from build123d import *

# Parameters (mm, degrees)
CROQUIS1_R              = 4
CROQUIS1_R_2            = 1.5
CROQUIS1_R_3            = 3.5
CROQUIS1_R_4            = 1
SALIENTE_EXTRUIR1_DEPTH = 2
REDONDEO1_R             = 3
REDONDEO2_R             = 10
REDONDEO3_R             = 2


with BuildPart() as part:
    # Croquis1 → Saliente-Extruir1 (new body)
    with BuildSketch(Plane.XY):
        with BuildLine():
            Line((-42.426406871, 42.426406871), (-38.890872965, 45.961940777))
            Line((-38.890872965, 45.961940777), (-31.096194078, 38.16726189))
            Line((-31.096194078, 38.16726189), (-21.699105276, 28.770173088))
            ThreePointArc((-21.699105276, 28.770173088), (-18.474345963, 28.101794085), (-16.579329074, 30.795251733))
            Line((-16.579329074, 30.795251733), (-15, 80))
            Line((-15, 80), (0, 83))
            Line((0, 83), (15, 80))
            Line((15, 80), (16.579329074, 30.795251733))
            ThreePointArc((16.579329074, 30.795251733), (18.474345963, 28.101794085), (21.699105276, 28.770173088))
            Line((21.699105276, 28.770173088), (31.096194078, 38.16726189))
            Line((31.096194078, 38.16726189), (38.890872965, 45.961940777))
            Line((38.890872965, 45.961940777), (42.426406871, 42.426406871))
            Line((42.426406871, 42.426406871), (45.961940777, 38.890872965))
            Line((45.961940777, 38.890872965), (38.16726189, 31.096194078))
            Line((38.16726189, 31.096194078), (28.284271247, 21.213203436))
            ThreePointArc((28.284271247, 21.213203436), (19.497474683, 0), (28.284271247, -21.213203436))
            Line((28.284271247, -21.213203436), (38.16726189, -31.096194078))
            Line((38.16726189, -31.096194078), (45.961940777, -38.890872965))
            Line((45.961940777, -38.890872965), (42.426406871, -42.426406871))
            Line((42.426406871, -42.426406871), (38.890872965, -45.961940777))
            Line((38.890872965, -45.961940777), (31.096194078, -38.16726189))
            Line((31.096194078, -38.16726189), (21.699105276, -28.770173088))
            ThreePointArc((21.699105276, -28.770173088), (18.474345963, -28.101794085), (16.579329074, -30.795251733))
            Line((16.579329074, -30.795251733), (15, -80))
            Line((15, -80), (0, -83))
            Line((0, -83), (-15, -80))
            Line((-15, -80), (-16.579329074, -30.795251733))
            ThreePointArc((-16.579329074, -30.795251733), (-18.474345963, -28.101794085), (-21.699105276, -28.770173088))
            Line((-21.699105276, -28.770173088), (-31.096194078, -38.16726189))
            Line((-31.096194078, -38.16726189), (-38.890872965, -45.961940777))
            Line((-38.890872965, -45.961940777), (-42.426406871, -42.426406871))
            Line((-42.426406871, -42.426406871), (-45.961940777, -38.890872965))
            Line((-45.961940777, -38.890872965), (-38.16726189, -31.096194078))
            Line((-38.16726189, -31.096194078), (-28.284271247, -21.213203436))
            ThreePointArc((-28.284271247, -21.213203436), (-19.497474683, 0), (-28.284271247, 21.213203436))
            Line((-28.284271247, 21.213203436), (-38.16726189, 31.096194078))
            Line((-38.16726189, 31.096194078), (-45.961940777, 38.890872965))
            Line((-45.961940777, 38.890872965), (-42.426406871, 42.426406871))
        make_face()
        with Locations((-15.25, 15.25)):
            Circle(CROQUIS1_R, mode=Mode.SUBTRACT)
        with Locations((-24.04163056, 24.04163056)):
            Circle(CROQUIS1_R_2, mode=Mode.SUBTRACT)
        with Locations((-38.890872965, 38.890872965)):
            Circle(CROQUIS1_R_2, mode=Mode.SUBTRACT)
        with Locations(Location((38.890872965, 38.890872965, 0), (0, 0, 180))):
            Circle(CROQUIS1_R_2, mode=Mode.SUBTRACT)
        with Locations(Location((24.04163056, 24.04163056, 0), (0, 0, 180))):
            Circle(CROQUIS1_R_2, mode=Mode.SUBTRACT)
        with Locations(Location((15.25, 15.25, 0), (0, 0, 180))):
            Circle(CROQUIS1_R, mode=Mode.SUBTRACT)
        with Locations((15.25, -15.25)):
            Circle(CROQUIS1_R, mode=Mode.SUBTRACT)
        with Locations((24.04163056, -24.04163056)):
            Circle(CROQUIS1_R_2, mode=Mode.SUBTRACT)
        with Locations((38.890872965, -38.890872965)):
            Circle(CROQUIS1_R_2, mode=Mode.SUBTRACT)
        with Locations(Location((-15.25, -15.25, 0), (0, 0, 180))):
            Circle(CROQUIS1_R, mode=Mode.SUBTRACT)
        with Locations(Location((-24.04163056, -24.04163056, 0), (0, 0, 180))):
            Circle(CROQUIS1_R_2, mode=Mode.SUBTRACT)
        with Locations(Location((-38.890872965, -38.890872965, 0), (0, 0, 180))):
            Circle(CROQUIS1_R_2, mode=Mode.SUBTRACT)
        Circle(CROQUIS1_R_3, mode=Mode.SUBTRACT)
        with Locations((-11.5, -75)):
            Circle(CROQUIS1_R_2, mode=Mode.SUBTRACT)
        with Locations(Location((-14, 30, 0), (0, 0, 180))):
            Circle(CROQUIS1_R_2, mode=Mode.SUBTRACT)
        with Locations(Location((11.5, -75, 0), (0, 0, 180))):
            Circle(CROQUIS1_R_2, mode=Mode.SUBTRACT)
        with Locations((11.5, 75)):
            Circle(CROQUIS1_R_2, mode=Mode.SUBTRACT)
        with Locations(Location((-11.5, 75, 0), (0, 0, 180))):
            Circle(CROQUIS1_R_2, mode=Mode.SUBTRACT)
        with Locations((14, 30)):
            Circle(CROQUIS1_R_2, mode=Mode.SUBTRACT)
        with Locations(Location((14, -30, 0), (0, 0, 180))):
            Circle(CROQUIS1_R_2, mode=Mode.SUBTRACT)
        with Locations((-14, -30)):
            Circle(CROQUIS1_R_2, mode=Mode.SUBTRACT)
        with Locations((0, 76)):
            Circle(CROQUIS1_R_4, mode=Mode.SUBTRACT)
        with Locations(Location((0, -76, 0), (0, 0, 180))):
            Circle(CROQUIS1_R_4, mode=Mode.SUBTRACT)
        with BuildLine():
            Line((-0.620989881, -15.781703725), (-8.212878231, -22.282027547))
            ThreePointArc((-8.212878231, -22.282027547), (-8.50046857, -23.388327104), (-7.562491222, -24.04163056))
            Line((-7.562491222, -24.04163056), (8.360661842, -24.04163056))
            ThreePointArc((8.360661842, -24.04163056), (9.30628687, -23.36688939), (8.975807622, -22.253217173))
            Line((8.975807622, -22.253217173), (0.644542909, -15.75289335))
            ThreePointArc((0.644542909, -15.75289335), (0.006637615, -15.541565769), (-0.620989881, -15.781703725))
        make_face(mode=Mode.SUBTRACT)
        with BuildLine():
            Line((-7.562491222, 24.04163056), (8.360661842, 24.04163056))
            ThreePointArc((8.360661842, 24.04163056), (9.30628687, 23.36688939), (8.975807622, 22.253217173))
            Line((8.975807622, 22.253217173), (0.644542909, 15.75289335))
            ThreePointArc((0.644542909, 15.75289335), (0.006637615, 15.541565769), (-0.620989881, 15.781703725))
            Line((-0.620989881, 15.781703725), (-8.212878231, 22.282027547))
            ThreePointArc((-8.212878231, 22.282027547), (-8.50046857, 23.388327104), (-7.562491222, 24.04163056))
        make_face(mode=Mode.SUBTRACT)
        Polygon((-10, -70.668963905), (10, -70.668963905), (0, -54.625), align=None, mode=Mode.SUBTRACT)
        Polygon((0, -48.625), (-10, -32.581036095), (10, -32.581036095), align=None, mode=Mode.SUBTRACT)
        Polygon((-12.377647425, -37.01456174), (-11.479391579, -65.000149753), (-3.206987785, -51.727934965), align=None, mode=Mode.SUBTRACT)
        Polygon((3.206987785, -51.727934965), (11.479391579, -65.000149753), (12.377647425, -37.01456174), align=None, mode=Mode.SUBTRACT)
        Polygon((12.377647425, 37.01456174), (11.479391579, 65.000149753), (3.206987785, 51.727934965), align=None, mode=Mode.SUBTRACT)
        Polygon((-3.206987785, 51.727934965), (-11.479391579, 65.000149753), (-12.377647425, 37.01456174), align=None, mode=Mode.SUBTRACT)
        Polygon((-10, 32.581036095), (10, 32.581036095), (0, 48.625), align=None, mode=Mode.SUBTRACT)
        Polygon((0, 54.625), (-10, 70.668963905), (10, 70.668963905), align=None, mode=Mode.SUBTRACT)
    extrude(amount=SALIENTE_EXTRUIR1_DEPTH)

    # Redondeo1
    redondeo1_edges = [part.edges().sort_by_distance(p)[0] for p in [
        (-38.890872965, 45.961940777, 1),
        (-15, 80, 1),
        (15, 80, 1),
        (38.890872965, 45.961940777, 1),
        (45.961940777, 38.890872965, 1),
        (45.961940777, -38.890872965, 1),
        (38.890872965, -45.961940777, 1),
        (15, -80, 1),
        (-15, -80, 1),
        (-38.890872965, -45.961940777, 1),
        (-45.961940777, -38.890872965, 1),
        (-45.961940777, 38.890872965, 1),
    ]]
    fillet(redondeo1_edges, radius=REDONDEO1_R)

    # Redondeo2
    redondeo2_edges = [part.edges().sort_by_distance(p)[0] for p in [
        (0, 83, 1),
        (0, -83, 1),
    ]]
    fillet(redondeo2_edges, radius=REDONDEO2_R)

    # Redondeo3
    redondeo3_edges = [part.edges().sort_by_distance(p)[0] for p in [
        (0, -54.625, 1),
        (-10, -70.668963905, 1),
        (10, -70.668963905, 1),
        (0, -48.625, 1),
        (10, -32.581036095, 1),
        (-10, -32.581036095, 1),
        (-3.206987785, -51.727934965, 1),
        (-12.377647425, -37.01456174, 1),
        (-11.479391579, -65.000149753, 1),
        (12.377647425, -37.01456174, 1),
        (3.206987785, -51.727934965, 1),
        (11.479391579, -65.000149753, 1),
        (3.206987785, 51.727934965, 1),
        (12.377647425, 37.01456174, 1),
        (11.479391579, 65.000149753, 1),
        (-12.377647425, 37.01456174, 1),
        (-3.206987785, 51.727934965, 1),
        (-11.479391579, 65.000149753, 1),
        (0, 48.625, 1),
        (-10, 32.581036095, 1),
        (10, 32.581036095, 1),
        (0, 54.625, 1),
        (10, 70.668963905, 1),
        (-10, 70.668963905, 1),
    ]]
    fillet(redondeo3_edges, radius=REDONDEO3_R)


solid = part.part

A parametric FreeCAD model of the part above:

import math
import FreeCAD as App
import Part
import Sketcher


def edges_at(feature, points):
    """Names of the edges that pass closest to the given points."""
    edges = feature.Shape.Edges
    near = lambda p: min(range(len(edges)), key=lambda i: edges[i].distToShape(Part.Vertex(*p))[0])
    return sorted({f"Edge{near(p) + 1}" for p in points})


def add_polygon(sketch, points):
    """Adds a closed chain of lines whose ends are joined by coincident constraints."""
    first, n = sketch.GeometryCount, len(points)
    for a, b in zip(points, points[1:] + points[:1]):
        sketch.addGeometry(Part.LineSegment(App.Vector(*a, 0), App.Vector(*b, 0)), False)
    for i in range(n):
        sketch.addConstraint(Sketcher.Constraint("Coincident", first + i, 2, first + (i + 1) % n, 1))

doc = App.newDocument("Part")
body = doc.addObject("PartDesign::Body", "Body")

sketch1 = body.newObject("Sketcher::SketchObject", "Sketch")
sketch1.AttachmentSupport = (doc.getObject("XY_Plane"), [""])
sketch1.MapMode = "FlatFace"
sketch1.addGeometry(Part.LineSegment(App.Vector(-21.7, 28.8, 0), App.Vector(-38.9, 46, 0)), False)
sketch1.addGeometry(Part.LineSegment(App.Vector(-38.9, 46, 0), App.Vector(-46, 38.9, 0)), False)
sketch1.addGeometry(Part.LineSegment(App.Vector(-46, 38.9, 0), App.Vector(-38.2, 31.1, 0)), False)
sketch1.addGeometry(Part.LineSegment(App.Vector(-38.2, 31.1, 0), App.Vector(-28.3, 21.2, 0)), False)
sketch1.addGeometry(Part.ArcOfCircle(Part.Circle(App.Vector(-49.5, 0, 0), App.Vector(0, 0, 1), 30), math.radians(-45), math.radians(45)), False)
sketch1.addGeometry(Part.LineSegment(App.Vector(-28.3, -21.2, 0), App.Vector(-38.2, -31.1, 0)), False)
sketch1.addGeometry(Part.LineSegment(App.Vector(-38.2, -31.1, 0), App.Vector(-46, -38.9, 0)), False)
sketch1.addGeometry(Part.LineSegment(App.Vector(-46, -38.9, 0), App.Vector(-38.9, -46, 0)), False)
sketch1.addGeometry(Part.LineSegment(App.Vector(-38.9, -46, 0), App.Vector(-21.7, -28.8, 0)), False)
sketch1.addGeometry(Part.ArcOfCircle(Part.Circle(App.Vector(-19.6, -30.9, 0), App.Vector(0, 0, 1), 3), math.radians(2), math.radians(135)), False)
sketch1.addGeometry(Part.LineSegment(App.Vector(-16.6, -30.8, 0), App.Vector(-15, -80, 0)), False)
sketch1.addGeometry(Part.LineSegment(App.Vector(-15, -80, 0), App.Vector(0, -83, 0)), False)
sketch1.addGeometry(Part.LineSegment(App.Vector(0, -83, 0), App.Vector(15, -80, 0)), False)
sketch1.addGeometry(Part.LineSegment(App.Vector(15, -80, 0), App.Vector(16.6, -30.8, 0)), False)
sketch1.addGeometry(Part.ArcOfCircle(Part.Circle(App.Vector(19.6, -30.9, 0), App.Vector(0, 0, 1), 3), math.radians(45), math.radians(178)), False)
sketch1.addGeometry(Part.LineSegment(App.Vector(21.7, -28.8, 0), App.Vector(38.9, -46, 0)), False)
sketch1.addGeometry(Part.LineSegment(App.Vector(38.9, -46, 0), App.Vector(46, -38.9, 0)), False)
sketch1.addGeometry(Part.LineSegment(App.Vector(46, -38.9, 0), App.Vector(38.2, -31.1, 0)), False)
sketch1.addGeometry(Part.LineSegment(App.Vector(38.2, -31.1, 0), App.Vector(28.3, -21.2, 0)), False)
sketch1.addGeometry(Part.ArcOfCircle(Part.Circle(App.Vector(49.5, 0, 0), App.Vector(0, 0, 1), 30), math.radians(135), math.radians(225)), False)
sketch1.addGeometry(Part.LineSegment(App.Vector(28.3, 21.2, 0), App.Vector(38.2, 31.1, 0)), False)
sketch1.addGeometry(Part.LineSegment(App.Vector(38.2, 31.1, 0), App.Vector(46, 38.9, 0)), False)
sketch1.addGeometry(Part.LineSegment(App.Vector(46, 38.9, 0), App.Vector(38.9, 46, 0)), False)
sketch1.addGeometry(Part.LineSegment(App.Vector(38.9, 46, 0), App.Vector(21.7, 28.8, 0)), False)
sketch1.addGeometry(Part.ArcOfCircle(Part.Circle(App.Vector(19.6, 30.9, 0), App.Vector(0, 0, 1), 3), math.radians(-178), math.radians(-45)), False)
sketch1.addGeometry(Part.LineSegment(App.Vector(16.6, 30.8, 0), App.Vector(15, 80, 0)), False)
sketch1.addGeometry(Part.LineSegment(App.Vector(15, 80, 0), App.Vector(0, 83, 0)), False)
sketch1.addGeometry(Part.LineSegment(App.Vector(0, 83, 0), App.Vector(-15, 80, 0)), False)
sketch1.addGeometry(Part.LineSegment(App.Vector(-15, 80, 0), App.Vector(-16.6, 30.8, 0)), False)
sketch1.addGeometry(Part.ArcOfCircle(Part.Circle(App.Vector(-19.6, 30.9, 0), App.Vector(0, 0, 1), 3), math.radians(-135), math.radians(-2)), False)
sketch1.addGeometry(Part.Circle(App.Vector(38.9, -38.9, 0), App.Vector(0, 0, 1), 1.5), False)
sketch1.addGeometry(Part.Circle(App.Vector(11.5, -75, 0), App.Vector(0, 0, 1), 1.5), False)
sketch1.addGeometry(Part.Circle(App.Vector(0, -76, 0), App.Vector(0, 0, 1), 1), False)
add_polygon(sketch1, [(-10, -70.7), (0, -54.6), (10, -70.7)])
add_polygon(sketch1, [(3.2, -51.7), (12.4, -37), (11.5, -65)])
add_polygon(sketch1, [(0, -48.6), (-10, -32.6), (10, -32.6)])
sketch1.addGeometry(Part.Circle(App.Vector(24, -24, 0), App.Vector(0, 0, 1), 1.5), False)
sketch1.addGeometry(Part.Circle(App.Vector(14, -30, 0), App.Vector(0, 0, 1), 1.5), False)
sketch1.addGeometry(Part.ArcOfCircle(Part.Circle(App.Vector(0, -16.5, 0), App.Vector(0, 0, 1), 1), math.radians(52), math.radians(131)), False)
sketch1.addGeometry(Part.LineSegment(App.Vector(0.6, -15.8, 0), App.Vector(9, -22.3, 0)), False)
sketch1.addGeometry(Part.ArcOfCircle(Part.Circle(App.Vector(8.4, -23, 0), App.Vector(0, 0, 1), 1), math.radians(-90), math.radians(52)), False)
sketch1.addGeometry(Part.LineSegment(App.Vector(8.4, -24, 0), App.Vector(-7.6, -24, 0)), False)
sketch1.addGeometry(Part.ArcOfCircle(Part.Circle(App.Vector(-7.6, -23, 0), App.Vector(0, 0, 1), 1), math.radians(131), math.radians(270)), False)
sketch1.addGeometry(Part.LineSegment(App.Vector(-8.2, -22.3, 0), App.Vector(-0.6, -15.8, 0)), False)
sketch1.addGeometry(Part.Circle(App.Vector(15.2, -15.2, 0), App.Vector(0, 0, 1), 4), False)
sketch1.addGeometry(Part.Circle(App.Vector(-11.5, -75, 0), App.Vector(0, 0, 1), 1.5), False)
add_polygon(sketch1, [(-12.4, -37), (-3.2, -51.7), (-11.5, -65)])
sketch1.addGeometry(Part.Circle(App.Vector(-38.9, -38.9, 0), App.Vector(0, 0, 1), 1.5), False)
sketch1.addGeometry(Part.Circle(App.Vector(-14, -30, 0), App.Vector(0, 0, 1), 1.5), False)
sketch1.addGeometry(Part.Circle(App.Vector(-15.2, -15.2, 0), App.Vector(0, 0, 1), 4), False)
sketch1.addGeometry(Part.Circle(App.Vector(-24, -24, 0), App.Vector(0, 0, 1), 1.5), False)
sketch1.addGeometry(Part.Circle(App.Vector(24, 24, 0), App.Vector(0, 0, 1), 1.5), False)
sketch1.addGeometry(Part.Circle(App.Vector(15.2, 15.2, 0), App.Vector(0, 0, 1), 4), False)
sketch1.addGeometry(Part.Circle(App.Vector(0, 0, 0), App.Vector(0, 0, 1), 3.5), False)
sketch1.addGeometry(Part.Circle(App.Vector(14, 30, 0), App.Vector(0, 0, 1), 1.5), False)
sketch1.addGeometry(Part.LineSegment(App.Vector(-7.6, 24, 0), App.Vector(8.4, 24, 0)), False)
sketch1.addGeometry(Part.ArcOfCircle(Part.Circle(App.Vector(8.4, 23, 0), App.Vector(0, 0, 1), 1), math.radians(-52), math.radians(90)), False)
sketch1.addGeometry(Part.LineSegment(App.Vector(9, 22.3, 0), App.Vector(0.6, 15.8, 0)), False)
sketch1.addGeometry(Part.ArcOfCircle(Part.Circle(App.Vector(0, 16.5, 0), App.Vector(0, 0, 1), 1), math.radians(-131), math.radians(-52)), False)
sketch1.addGeometry(Part.LineSegment(App.Vector(-0.6, 15.8, 0), App.Vector(-8.2, 22.3, 0)), False)
sketch1.addGeometry(Part.ArcOfCircle(Part.Circle(App.Vector(-7.6, 23, 0), App.Vector(0, 0, 1), 1), math.radians(90), math.radians(229)), False)
sketch1.addGeometry(Part.Circle(App.Vector(38.9, 38.9, 0), App.Vector(0, 0, 1), 1.5), False)
add_polygon(sketch1, [(-10, 32.6), (0, 48.6), (10, 32.6)])
add_polygon(sketch1, [(12.4, 37), (3.2, 51.7), (11.5, 65)])
sketch1.addGeometry(Part.Circle(App.Vector(11.5, 75, 0), App.Vector(0, 0, 1), 1.5), False)
add_polygon(sketch1, [(0, 54.6), (-10, 70.7), (10, 70.7)])
sketch1.addGeometry(Part.Circle(App.Vector(0, 76, 0), App.Vector(0, 0, 1), 1), False)
sketch1.addGeometry(Part.Circle(App.Vector(-15.2, 15.2, 0), App.Vector(0, 0, 1), 4), False)
sketch1.addGeometry(Part.Circle(App.Vector(-14, 30, 0), App.Vector(0, 0, 1), 1.5), False)
sketch1.addGeometry(Part.Circle(App.Vector(-24, 24, 0), App.Vector(0, 0, 1), 1.5), False)
add_polygon(sketch1, [(-3.2, 51.7), (-12.4, 37), (-11.5, 65)])
sketch1.addGeometry(Part.Circle(App.Vector(-11.5, 75, 0), App.Vector(0, 0, 1), 1.5), False)
sketch1.addGeometry(Part.Circle(App.Vector(-38.9, 38.9, 0), App.Vector(0, 0, 1), 1.5), False)
sketch1.addConstraint([
    Sketcher.Constraint("Coincident", 0, 2, 1, 1),
    Sketcher.Constraint("Coincident", 1, 2, 2, 1),
    Sketcher.Constraint("Coincident", 2, 2, 3, 1),
    Sketcher.Constraint("Tangent", 3, 2, 4, 2),
    Sketcher.Constraint("Tangent", 4, 1, 5, 1),
    Sketcher.Constraint("Coincident", 5, 2, 6, 1),
    Sketcher.Constraint("Coincident", 6, 2, 7, 1),
    Sketcher.Constraint("Coincident", 7, 2, 8, 1),
    Sketcher.Constraint("Tangent", 8, 2, 9, 2),
    Sketcher.Constraint("Tangent", 9, 1, 10, 1),
    Sketcher.Constraint("Coincident", 10, 2, 11, 1),
    Sketcher.Constraint("Coincident", 11, 2, 12, 1),
    Sketcher.Constraint("Coincident", 12, 2, 13, 1),
    Sketcher.Constraint("Tangent", 13, 2, 14, 2),
    Sketcher.Constraint("Tangent", 14, 1, 15, 1),
    Sketcher.Constraint("Coincident", 15, 2, 16, 1),
    Sketcher.Constraint("Coincident", 16, 2, 17, 1),
    Sketcher.Constraint("Coincident", 17, 2, 18, 1),
    Sketcher.Constraint("Tangent", 18, 2, 19, 2),
    Sketcher.Constraint("Tangent", 19, 1, 20, 1),
    Sketcher.Constraint("Coincident", 20, 2, 21, 1),
    Sketcher.Constraint("Coincident", 21, 2, 22, 1),
    Sketcher.Constraint("Coincident", 22, 2, 23, 1),
    Sketcher.Constraint("Tangent", 23, 2, 24, 2),
    Sketcher.Constraint("Tangent", 24, 1, 25, 1),
    Sketcher.Constraint("Coincident", 25, 2, 26, 1),
    Sketcher.Constraint("Coincident", 26, 2, 27, 1),
    Sketcher.Constraint("Coincident", 27, 2, 28, 1),
    Sketcher.Constraint("Tangent", 28, 2, 29, 2),
    Sketcher.Constraint("Tangent", 29, 1, 0, 1),
    Sketcher.Constraint("Tangent", 44, 1, 45, 1),
    Sketcher.Constraint("Tangent", 45, 2, 46, 2),
    Sketcher.Constraint("Tangent", 46, 1, 47, 1),
    Sketcher.Constraint("Tangent", 47, 2, 48, 2),
    Sketcher.Constraint("Tangent", 48, 1, 49, 1),
    Sketcher.Constraint("Tangent", 49, 2, 44, 2),
    Sketcher.Constraint("Tangent", 63, 2, 64, 2),
    Sketcher.Constraint("Tangent", 64, 1, 65, 1),
    Sketcher.Constraint("Tangent", 65, 2, 66, 2),
    Sketcher.Constraint("Tangent", 66, 1, 67, 1),
    Sketcher.Constraint("Tangent", 67, 2, 68, 2),
    Sketcher.Constraint("Tangent", 68, 1, 63, 1),
    Sketcher.Constraint("Horizontal", 35),
    Sketcher.Constraint("Horizontal", 40),
    Sketcher.Constraint("Horizontal", 47),
    Sketcher.Constraint("Horizontal", 63),
    Sketcher.Constraint("Horizontal", 72),
    Sketcher.Constraint("Horizontal", 78),
    Sketcher.Constraint("Coincident", 61, 3, -1, 1),
    Sketcher.Constraint("Equal", 9, 14),
    Sketcher.Constraint("Equal", 4, 19),
    Sketcher.Constraint("Equal", 14, 24),
    Sketcher.Constraint("Equal", 24, 29),
    Sketcher.Constraint("Equal", 30, 31),
    Sketcher.Constraint("Equal", 31, 42),
    Sketcher.Constraint("Equal", 42, 43),
    Sketcher.Constraint("Equal", 32, 44),
    Sketcher.Constraint("Equal", 44, 46),
    Sketcher.Constraint("Equal", 46, 48),
    Sketcher.Constraint("Equal", 43, 51),
    Sketcher.Constraint("Equal", 51, 55),
    Sketcher.Constraint("Equal", 55, 56),
    Sketcher.Constraint("Equal", 50, 57),
    Sketcher.Constraint("Equal", 56, 58),
    Sketcher.Constraint("Equal", 58, 59),
    Sketcher.Constraint("Equal", 57, 60),
    Sketcher.Constraint("Equal", 59, 62),
    Sketcher.Constraint("Equal", 48, 64),
    Sketcher.Constraint("Equal", 64, 66),
    Sketcher.Constraint("Equal", 66, 68),
    Sketcher.Constraint("Equal", 62, 69),
    Sketcher.Constraint("Equal", 69, 76),
    Sketcher.Constraint("Equal", 68, 80),
    Sketcher.Constraint("Equal", 60, 81),
    Sketcher.Constraint("Equal", 76, 82),
    Sketcher.Constraint("Equal", 82, 83),
    Sketcher.Constraint("Equal", 83, 87),
    Sketcher.Constraint("Equal", 87, 88),
    Sketcher.Constraint("Symmetric", 4, 3, 19, 3, -1, 1),
    Sketcher.Constraint("Symmetric", 9, 3, 24, 3, -1, 1),
    Sketcher.Constraint("Symmetric", 14, 3, 29, 3, -1, 1),
    Sketcher.Constraint("Symmetric", 58, 3, 59, 3, -1, 1),
    Sketcher.Constraint("Symmetric", 57, 3, 60, 3, -1, 1),
    Sketcher.Constraint("Symmetric", 56, 3, 62, 3, -1, 1),
    Sketcher.Constraint("Symmetric", 55, 3, 69, 3, -1, 1),
    Sketcher.Constraint("Symmetric", 51, 3, 76, 3, -1, 1),
    Sketcher.Constraint("Symmetric", 32, 3, 80, 3, -1, 1),
    Sketcher.Constraint("Symmetric", 50, 3, 81, 3, -1, 1),
    Sketcher.Constraint("Symmetric", 43, 3, 82, 3, -1, 1),
    Sketcher.Constraint("Symmetric", 42, 3, 83, 3, -1, 1),
    Sketcher.Constraint("Symmetric", 31, 3, 87, 3, -1, 1),
    Sketcher.Constraint("Symmetric", 30, 3, 88, 3, -1, 1),
    Sketcher.Constraint("Symmetric", 0, 2, 15, 2, -1, 1),
    Sketcher.Constraint("Symmetric", 1, 2, 16, 2, -1, 1),
    Sketcher.Constraint("Symmetric", 2, 2, 17, 2, -1, 1),
    Sketcher.Constraint("Symmetric", 5, 2, 20, 2, -1, 1),
    Sketcher.Constraint("Symmetric", 6, 2, 21, 2, -1, 1),
    Sketcher.Constraint("Symmetric", 7, 2, 22, 2, -1, 1),
    Sketcher.Constraint("Symmetric", 10, 2, 25, 2, -1, 1),
    Sketcher.Constraint("Symmetric", 11, 2, 26, 2, -1, 1),
    Sketcher.Constraint("Symmetric", 12, 2, 27, 2, -1, 1),
    Sketcher.Constraint("Symmetric", 41, 2, 70, 2, -1, 1),
    Sketcher.Constraint("Symmetric", 39, 2, 71, 2, -1, 1),
    Sketcher.Constraint("Symmetric", 52, 2, 73, 2, -1, 1),
    Sketcher.Constraint("Symmetric", 53, 2, 74, 2, -1, 1),
    Sketcher.Constraint("Symmetric", 54, 2, 75, 2, -1, 1),
    Sketcher.Constraint("Symmetric", 34, 2, 77, 2, -1, 1),
    Sketcher.Constraint("Symmetric", 33, 2, 79, 2, -1, 1),
    Sketcher.Constraint("Symmetric", 36, 2, 84, 2, -1, 1),
    Sketcher.Constraint("Symmetric", 37, 2, 85, 2, -1, 1),
    Sketcher.Constraint("Symmetric", 38, 2, 86, 2, -1, 1),
    Sketcher.Constraint("Symmetric", 9, 3, 14, 3, -2),
    Sketcher.Constraint("Symmetric", 31, 3, 51, 3, -2),
    Sketcher.Constraint("Symmetric", 30, 3, 55, 3, -2),
    Sketcher.Constraint("Symmetric", 43, 3, 56, 3, -2),
    Sketcher.Constraint("Symmetric", 50, 3, 57, 3, -2),
    Sketcher.Constraint("Symmetric", 42, 3, 58, 3, -2),
    Sketcher.Constraint("Symmetric", 10, 2, 12, 2, -2),
    Sketcher.Constraint("Symmetric", 7, 2, 15, 2, -2),
    Sketcher.Constraint("Symmetric", 6, 2, 16, 2, -2),
    Sketcher.Constraint("Symmetric", 5, 2, 17, 2, -2),
    Sketcher.Constraint("Symmetric", 38, 2, 52, 2, -2),
    Sketcher.Constraint("Symmetric", 37, 2, 53, 2, -2),
    Sketcher.Constraint("Symmetric", 36, 2, 54, 2, -2),
    Sketcher.Constraint("Symmetric", 46, 3, 64, 3, -1),
    Sketcher.Constraint("Symmetric", 44, 3, 66, 3, -1),
    Sketcher.Constraint("PointOnObject", 4, 3, -1),
    Sketcher.Constraint("PointOnObject", 32, 3, -2),
    Sketcher.Constraint("PointOnObject", 11, 2, -2),
    Sketcher.Constraint("PointOnObject", 33, 2, -2),
    Sketcher.Constraint("PointOnObject", 41, 2, -2),
    Sketcher.Constraint("Perpendicular", 0, 1),
    Sketcher.Constraint("Perpendicular", 1, 2),
    Sketcher.Constraint("Parallel", 2, 3),
    Sketcher.Constraint("Perpendicular", 3, 5),
    Sketcher.Constraint("Parallel", 33, 36),
    Sketcher.Constraint("Parallel", 28, 37),
    Sketcher.Constraint("Parallel", 34, 38),
    Sketcher.Constraint("Parallel", 38, 39),
    Sketcher.Constraint("Parallel", 36, 41),
    Sketcher.Constraint("Parallel", 39, 52),
    Sketcher.Constraint("Parallel", 53, 70),
    Sketcher.Constraint("Parallel", 74, 79),
    Sketcher.Constraint("Horizontal", 88, 3, 1, 2),
    Sketcher.Constraint("Horizontal", 58, 3, 46, 1),
    Sketcher.Constraint("Vertical", 48, 3, 68, 3),
    Sketcher.Constraint("Vertical", 88, 3, 0, 2),
    Sketcher.Constraint("Vertical", 35, 2, 39, 2),
    Sketcher.Constraint("Diameter", 30, 3.0),
    Sketcher.Constraint("Diameter", 32, 2.0),
    Sketcher.Constraint("Diameter", 50, 8.0),
    Sketcher.Constraint("Diameter", 61, 7.0),
    Sketcher.Constraint("Radius", 4, 30.0),
    Sketcher.Constraint("Radius", 9, 3.0),
    Sketcher.Constraint("DistanceX", 35, 2, 35, 1, 20.0),
    Sketcher.Constraint("Distance", 1, 10.0),
    Sketcher.Constraint("Distance", 37, 28.0),
    Sketcher.Constraint("DistanceY", 31, 3, -1, 1, 75.0),
    Sketcher.Constraint("DistanceY", 32, 3, -1, 1, 76.0),
    Sketcher.Constraint("DistanceX", -1, 1, 43, 3, 14.0),
    Sketcher.Constraint("DistanceY", 43, 3, -1, 1, 30.0),
    Sketcher.Constraint("DistanceX", 10, 2, -1, 1, 15.0),
    Sketcher.Constraint("DistanceY", 10, 2, -1, 1, 80.0),
    Sketcher.Constraint("DistanceY", 11, 2, -1, 1, 83.0),
    Sketcher.Constraint("DistanceX", -1, 1, 31, 3, 11.5),
    Sketcher.Constraint("DistanceX", -1, 1, 50, 3, 15.25),
    Sketcher.Constraint("DistanceY", 50, 3, -1, 1, 15.25),
    Sketcher.Constraint("DistanceY", 33, 2, -1, 1, 54.625),
    Sketcher.Constraint("DistanceY", 41, 2, -1, 1, 48.625),
    Sketcher.Constraint("Distance", 0, 24.312831),
    Sketcher.Constraint("Distance", 2, 11.023341),
    Sketcher.Constraint("Distance", 3, 13.976659),
    Sketcher.Constraint("Distance", 36, 17.337369),
    Sketcher.Constraint("DistanceX", 47, 2, 47, 1, 15.923153),
    Sketcher.Constraint("DistanceX", -1, 1, 42, 3, 24.041631),
    Sketcher.Constraint("DistanceY", 42, 3, -1, 1, 24.041631),
    Sketcher.Constraint("DistanceX", -1, 1, 46, 3, 8.360662),
    Sketcher.Constraint("DistanceX", 1, 2, -1, 1, 45.961941),
    Sketcher.Constraint("DistanceY", 36, 2, -1, 1, 37.014562),
    Sketcher.Constraint("DistanceX", -1, 1, 37, 2, 11.479392),
    Sketcher.Constraint("DistanceX", 48, 1, -1, 1, 8.212878),
    Sketcher.Constraint("DistanceX", 49, 2, -1, 1, 0.62099),
])
pad1 = body.newObject("PartDesign::Pad", "Pad")
pad1.Profile = sketch1
pad1.Length = 2
doc.recompute()

fillet = body.newObject("PartDesign::Fillet", "Fillet")
fillet.Base = (pad1, edges_at(pad1, [
    (-38.891, 45.962, 1),
    (-15, 80, 1),
    (15, 80, 1),
    (38.891, 45.962, 1),
    (45.962, 38.891, 1),
    (45.962, -38.891, 1),
    (38.891, -45.962, 1),
    (15, -80, 1),
    (-15, -80, 1),
    (-38.891, -45.962, 1),
    (-45.962, -38.891, 1),
    (-45.962, 38.891, 1),
]))
fillet.Radius = 3
doc.recompute()

fillet2 = body.newObject("PartDesign::Fillet", "Fillet001")
fillet2.Base = (fillet, edges_at(fillet, [(0, 83, 1), (0, -83, 1)]))
fillet2.Radius = 10
doc.recompute()

fillet3 = body.newObject("PartDesign::Fillet", "Fillet002")
fillet3.Base = (fillet2, edges_at(fillet2, [
    (0, -54.625, 1),
    (-10, -70.669, 1),
    (10, -70.669, 1),
    (0, -48.625, 1),
    (10, -32.581, 1),
    (-10, -32.581, 1),
    (-3.207, -51.728, 1),
    (-12.378, -37.015, 1),
    (-11.479, -65, 1),
    (12.378, -37.015, 1),
    (3.207, -51.728, 1),
    (11.479, -65, 1),
    (3.207, 51.728, 1),
    (12.378, 37.015, 1),
    (11.479, 65, 1),
    (-12.378, 37.015, 1),
    (-3.207, 51.728, 1),
    (-11.479, 65, 1),
    (0, 48.625, 1),
    (-10, 32.581, 1),
    (10, 32.581, 1),
    (0, 54.625, 1),
    (10, 70.669, 1),
    (-10, 70.669, 1),
]))
fillet3.Radius = 2

doc.recompute()
